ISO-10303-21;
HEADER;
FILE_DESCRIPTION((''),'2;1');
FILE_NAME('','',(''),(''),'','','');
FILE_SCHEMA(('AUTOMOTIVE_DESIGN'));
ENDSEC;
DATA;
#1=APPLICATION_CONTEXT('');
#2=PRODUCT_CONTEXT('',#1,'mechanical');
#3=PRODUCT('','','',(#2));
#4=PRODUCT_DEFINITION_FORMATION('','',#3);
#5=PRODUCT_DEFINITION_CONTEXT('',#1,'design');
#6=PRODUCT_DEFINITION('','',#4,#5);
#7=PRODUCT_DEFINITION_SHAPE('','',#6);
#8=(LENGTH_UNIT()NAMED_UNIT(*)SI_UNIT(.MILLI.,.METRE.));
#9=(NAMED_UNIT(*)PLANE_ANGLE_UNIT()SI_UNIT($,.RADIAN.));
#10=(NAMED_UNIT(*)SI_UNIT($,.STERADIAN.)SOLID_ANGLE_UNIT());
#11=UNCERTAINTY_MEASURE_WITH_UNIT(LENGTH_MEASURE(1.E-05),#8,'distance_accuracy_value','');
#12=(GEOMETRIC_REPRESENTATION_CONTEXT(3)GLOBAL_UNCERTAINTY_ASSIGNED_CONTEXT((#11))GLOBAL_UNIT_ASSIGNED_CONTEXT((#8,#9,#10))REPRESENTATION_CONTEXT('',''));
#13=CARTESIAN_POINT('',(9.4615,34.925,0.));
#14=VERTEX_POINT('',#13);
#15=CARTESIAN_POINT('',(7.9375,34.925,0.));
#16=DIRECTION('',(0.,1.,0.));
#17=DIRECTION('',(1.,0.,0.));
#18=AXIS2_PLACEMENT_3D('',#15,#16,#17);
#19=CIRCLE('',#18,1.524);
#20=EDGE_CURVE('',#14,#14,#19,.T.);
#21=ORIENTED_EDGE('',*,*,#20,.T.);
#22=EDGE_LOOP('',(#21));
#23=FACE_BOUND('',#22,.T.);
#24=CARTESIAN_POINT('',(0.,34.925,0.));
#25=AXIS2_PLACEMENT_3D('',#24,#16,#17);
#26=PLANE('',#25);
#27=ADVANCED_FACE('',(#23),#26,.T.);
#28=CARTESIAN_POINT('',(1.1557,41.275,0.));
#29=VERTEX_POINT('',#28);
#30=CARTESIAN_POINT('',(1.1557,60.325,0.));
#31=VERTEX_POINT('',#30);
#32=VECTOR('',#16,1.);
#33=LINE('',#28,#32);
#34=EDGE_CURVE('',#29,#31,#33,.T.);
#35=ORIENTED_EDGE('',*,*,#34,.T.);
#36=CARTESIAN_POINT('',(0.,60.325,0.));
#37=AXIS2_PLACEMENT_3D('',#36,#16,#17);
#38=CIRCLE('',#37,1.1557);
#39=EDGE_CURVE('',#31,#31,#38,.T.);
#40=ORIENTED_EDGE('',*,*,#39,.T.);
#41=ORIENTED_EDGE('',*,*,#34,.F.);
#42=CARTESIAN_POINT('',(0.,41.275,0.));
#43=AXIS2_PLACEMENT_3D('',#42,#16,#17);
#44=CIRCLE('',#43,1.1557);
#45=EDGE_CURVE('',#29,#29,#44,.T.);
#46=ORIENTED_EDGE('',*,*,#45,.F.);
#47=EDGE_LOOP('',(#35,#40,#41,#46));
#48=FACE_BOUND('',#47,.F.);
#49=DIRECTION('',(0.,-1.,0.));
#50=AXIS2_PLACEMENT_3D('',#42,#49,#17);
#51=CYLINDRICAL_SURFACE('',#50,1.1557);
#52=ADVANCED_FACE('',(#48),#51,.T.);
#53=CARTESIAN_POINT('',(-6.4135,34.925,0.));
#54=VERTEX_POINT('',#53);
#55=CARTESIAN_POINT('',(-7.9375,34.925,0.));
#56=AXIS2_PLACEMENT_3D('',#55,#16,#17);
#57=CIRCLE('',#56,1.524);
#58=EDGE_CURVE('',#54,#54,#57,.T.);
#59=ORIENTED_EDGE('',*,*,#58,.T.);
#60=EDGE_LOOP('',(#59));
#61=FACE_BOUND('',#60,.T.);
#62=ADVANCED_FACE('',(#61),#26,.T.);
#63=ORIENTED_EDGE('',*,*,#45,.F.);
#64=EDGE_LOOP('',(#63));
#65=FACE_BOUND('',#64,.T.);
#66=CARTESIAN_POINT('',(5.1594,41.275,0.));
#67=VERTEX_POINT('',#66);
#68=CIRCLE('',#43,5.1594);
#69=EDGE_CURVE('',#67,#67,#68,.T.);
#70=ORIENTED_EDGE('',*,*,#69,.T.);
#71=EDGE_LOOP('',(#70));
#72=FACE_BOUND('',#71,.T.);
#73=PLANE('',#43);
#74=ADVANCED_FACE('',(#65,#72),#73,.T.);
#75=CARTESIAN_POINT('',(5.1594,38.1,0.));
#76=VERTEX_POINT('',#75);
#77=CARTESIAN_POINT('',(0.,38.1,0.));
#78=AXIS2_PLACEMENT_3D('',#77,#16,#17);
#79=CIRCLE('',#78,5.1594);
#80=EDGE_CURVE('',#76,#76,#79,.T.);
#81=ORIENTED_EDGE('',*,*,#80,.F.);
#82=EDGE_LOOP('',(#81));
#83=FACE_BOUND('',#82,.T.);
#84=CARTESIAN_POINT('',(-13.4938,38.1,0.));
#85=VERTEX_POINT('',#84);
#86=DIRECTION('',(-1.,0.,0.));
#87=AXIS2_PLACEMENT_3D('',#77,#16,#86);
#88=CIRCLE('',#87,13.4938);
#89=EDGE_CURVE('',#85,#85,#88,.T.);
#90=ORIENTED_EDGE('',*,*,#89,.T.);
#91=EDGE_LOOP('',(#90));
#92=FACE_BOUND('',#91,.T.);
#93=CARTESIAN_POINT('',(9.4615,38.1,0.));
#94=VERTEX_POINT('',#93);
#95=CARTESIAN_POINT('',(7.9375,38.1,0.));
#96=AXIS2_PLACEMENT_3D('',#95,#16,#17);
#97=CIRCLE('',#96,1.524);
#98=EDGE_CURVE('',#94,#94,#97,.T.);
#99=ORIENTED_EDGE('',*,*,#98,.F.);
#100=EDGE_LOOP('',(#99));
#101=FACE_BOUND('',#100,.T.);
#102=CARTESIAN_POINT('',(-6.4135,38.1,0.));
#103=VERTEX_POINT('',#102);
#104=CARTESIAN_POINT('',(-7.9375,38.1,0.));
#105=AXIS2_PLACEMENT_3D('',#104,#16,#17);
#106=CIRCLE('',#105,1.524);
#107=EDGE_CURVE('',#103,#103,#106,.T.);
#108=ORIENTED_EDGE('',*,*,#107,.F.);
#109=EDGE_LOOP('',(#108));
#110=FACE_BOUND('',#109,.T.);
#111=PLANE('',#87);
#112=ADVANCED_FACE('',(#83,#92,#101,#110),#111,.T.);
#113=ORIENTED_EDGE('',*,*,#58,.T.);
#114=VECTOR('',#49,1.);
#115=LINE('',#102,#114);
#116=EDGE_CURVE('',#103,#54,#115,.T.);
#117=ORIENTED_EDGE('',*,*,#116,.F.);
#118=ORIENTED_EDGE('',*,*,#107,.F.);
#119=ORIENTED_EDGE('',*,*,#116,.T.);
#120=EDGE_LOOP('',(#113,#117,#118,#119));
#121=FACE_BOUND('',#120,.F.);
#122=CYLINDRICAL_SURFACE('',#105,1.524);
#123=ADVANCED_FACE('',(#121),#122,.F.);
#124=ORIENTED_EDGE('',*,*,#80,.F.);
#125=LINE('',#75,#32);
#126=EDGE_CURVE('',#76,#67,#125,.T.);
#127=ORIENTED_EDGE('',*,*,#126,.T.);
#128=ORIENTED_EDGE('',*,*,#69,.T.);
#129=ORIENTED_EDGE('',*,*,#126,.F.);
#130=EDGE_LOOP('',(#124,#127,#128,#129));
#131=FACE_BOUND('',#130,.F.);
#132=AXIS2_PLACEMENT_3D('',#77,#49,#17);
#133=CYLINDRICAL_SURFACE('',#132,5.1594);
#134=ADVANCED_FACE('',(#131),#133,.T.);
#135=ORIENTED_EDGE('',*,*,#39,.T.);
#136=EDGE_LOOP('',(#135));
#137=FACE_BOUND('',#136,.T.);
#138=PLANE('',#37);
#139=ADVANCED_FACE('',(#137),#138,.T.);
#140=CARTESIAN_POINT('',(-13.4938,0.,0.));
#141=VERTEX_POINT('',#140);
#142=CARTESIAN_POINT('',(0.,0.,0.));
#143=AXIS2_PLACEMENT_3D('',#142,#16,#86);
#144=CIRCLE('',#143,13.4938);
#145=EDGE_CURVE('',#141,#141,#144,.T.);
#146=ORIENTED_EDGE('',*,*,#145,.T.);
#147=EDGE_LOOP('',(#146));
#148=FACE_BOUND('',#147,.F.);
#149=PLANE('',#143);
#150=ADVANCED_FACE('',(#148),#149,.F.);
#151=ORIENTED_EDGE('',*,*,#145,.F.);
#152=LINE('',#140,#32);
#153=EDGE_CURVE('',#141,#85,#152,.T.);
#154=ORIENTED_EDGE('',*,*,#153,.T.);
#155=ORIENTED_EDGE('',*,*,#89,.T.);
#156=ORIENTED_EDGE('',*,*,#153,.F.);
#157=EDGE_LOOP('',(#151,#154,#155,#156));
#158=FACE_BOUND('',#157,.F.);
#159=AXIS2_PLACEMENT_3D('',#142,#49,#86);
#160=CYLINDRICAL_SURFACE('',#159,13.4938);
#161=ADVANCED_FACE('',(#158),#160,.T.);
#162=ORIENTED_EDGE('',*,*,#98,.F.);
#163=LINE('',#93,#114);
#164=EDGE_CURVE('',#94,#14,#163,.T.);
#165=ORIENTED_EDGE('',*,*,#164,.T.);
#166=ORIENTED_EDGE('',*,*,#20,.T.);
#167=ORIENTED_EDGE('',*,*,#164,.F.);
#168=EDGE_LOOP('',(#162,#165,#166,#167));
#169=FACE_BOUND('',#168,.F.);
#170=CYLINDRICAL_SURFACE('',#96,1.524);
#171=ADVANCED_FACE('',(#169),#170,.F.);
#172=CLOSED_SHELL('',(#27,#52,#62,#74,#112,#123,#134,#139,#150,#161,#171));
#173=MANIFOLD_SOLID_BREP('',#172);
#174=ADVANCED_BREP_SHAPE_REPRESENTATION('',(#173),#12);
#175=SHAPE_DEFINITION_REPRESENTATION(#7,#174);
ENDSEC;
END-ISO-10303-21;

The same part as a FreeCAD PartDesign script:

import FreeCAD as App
import Part
import Sketcher
Q = App.Units.Quantity

doc = App.newDocument("Part")
params = doc.addObject("Spreadsheet::Sheet", "Params")
for row, (alias, value) in enumerate([
    ("sketch1_diameter", "1.0625 in"),
    ("pad1_length", "1.5 in"),
    ("sketch2_diameter", "0.406252 in"),
    ("pad2_length", "0.125 in"),
    ("sketch3_diameter", "0.12 in"),
    ("pocket1_length", "0.125 in"),
    ("sketch4_diameter", "0.091 in"),
    ("pad3_length", "0.75 in"),
], start=1):
    params.set(f"A{row}", alias)
    params.set(f"B{row}", "=" + value)
    params.setAlias(f"B{row}", alias)

body = doc.addObject("PartDesign::Body", "Body")

# Sketch on XZ plane
sketch1 = doc.addObject("Sketcher::SketchObject", "Sketch")
body.addObject(sketch1)
sketch1.AttachmentSupport = (doc.XZ_Plane, [""])
sketch1.MapMode = "FlatFace"
sketch1.addGeometry(Part.Circle(App.Vector(0, 0, 0), App.Vector(0, 0, 1), 13.4938), False)
sketch1.addConstraint([
    Sketcher.Constraint("Coincident", 0, 3, -1, 1),
    Sketcher.Constraint("Diameter", 0, Q("1.0625 in")),
])
sketch1.setExpression("Constraints[1]", "Params.sketch1_diameter")
pad1 = doc.addObject("PartDesign::Pad", "Pad")
body.addObject(pad1)
pad1.Profile = sketch1
pad1.setExpression("Length", "Params.pad1_length")
pad1.Reversed = True

# Sketch on XZ plane
sketch2 = doc.addObject("Sketcher::SketchObject", "Sketch001")
body.addObject(sketch2)
sketch2.AttachmentSupport = (doc.XZ_Plane, [""])
sketch2.MapMode = "FlatFace"
sketch2.AttachmentOffset = App.Placement(App.Vector(0, 0, -1.5 * 25.4), App.Rotation())
sketch2.addGeometry(Part.Circle(App.Vector(0, 0, 0), App.Vector(0, 0, 1), 5.1594), False)
sketch2.addConstraint([
    Sketcher.Constraint("Coincident", 0, 3, -1, 1),
    Sketcher.Constraint("Diameter", 0, Q("0.406252 in")),
])
sketch2.setExpression("Constraints[1]", "Params.sketch2_diameter")
pad2 = doc.addObject("PartDesign::Pad", "Pad001")
body.addObject(pad2)
pad2.Profile = sketch2
pad2.setExpression("Length", "Params.pad2_length")
pad2.Reversed = True

# Sketch on XZ plane
sketch3 = doc.addObject("Sketcher::SketchObject", "Sketch002")
body.addObject(sketch3)
sketch3.AttachmentSupport = (doc.XZ_Plane, [""])
sketch3.MapMode = "FlatFace"
sketch3.AttachmentOffset = App.Placement(App.Vector(0, 0, -1.5 * 25.4), App.Rotation())
sketch3.addGeometry([
    Part.Circle(App.Vector(-7.9375, 0, 0), App.Vector(0, 0, 1), 1.524),
    Part.Circle(App.Vector(7.9375, 0, 0), App.Vector(0, 0, 1), 1.524),
], False)
sketch3.addConstraint([
    Sketcher.Constraint("Equal", 0, 1),
    Sketcher.Constraint("Symmetric", 0, 3, 1, 3, -1, 1),
    Sketcher.Constraint("PointOnObject", 0, 3, -1),
    Sketcher.Constraint("Diameter", 0, Q("0.12 in")),
    Sketcher.Constraint("DistanceX", 0, 3, -1, 1, Q("0.3125 in")),
])
sketch3.setExpression("Constraints[3]", "Params.sketch3_diameter")
pocket1 = doc.addObject("PartDesign::Pocket", "Pocket")
body.addObject(pocket1)
pocket1.Profile = sketch3
pocket1.setExpression("Length", "Params.pocket1_length")
pocket1.Reversed = True

# Sketch on XZ plane
sketch4 = doc.addObject("Sketcher::SketchObject", "Sketch003")
body.addObject(sketch4)
sketch4.AttachmentSupport = (doc.XZ_Plane, [""])
sketch4.MapMode = "FlatFace"
sketch4.AttachmentOffset = App.Placement(App.Vector(0, 0, -1.625 * 25.4), App.Rotation())
sketch4.addGeometry(Part.Circle(App.Vector(0, 0, 0), App.Vector(0, 0, 1), 1.1557), False)
sketch4.addConstraint([
    Sketcher.Constraint("Coincident", 0, 3, -1, 1),
    Sketcher.Constraint("Diameter", 0, Q("0.091 in")),
])
sketch4.setExpression("Constraints[1]", "Params.sketch4_diameter")
pad3 = doc.addObject("PartDesign::Pad", "Pad002")
body.addObject(pad3)
pad3.Profile = sketch4
pad3.setExpression("Length", "Params.pad3_length")
pad3.Reversed = True

doc.recompute()
